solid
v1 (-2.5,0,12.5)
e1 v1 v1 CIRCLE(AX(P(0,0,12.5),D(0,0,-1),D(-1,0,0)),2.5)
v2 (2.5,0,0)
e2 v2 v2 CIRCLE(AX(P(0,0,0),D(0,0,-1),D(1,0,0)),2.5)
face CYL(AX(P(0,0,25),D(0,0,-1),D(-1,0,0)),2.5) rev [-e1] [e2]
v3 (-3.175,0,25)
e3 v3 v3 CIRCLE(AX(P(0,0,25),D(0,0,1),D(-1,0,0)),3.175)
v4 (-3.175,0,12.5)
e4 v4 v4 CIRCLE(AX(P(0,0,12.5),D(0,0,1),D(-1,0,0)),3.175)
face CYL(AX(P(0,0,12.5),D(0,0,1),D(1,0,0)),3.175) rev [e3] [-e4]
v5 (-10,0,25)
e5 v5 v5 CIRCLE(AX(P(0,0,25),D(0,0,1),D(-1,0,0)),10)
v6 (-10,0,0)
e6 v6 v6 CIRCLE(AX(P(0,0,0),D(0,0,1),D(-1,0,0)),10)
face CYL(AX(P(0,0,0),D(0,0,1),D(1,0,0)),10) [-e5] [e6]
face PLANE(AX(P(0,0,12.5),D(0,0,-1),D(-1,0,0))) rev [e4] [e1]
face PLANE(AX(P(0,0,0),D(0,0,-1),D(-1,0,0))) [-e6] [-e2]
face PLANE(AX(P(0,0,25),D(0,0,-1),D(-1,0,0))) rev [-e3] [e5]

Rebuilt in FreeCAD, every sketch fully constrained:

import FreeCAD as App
import Part
import Sketcher
from FreeCAD import Vector

doc = App.newDocument("Part")
params = doc.addObject("Spreadsheet::Sheet", "Params")
for row, (alias, value) in enumerate([
    ("sketch1_diameter", "20 mm"),
    ("pad1_length", "25 mm"),
    ("sketch2_diameter", "6.35 mm"),
    ("pocket1_length", "12.5 mm"),
    ("sketch3_diameter", "5 mm"),
], start=1):
    params.set(f"A{row}", alias)
    params.set(f"B{row}", "=" + value)
    params.setAlias(f"B{row}", alias)

body = doc.addObject("PartDesign::Body", "Body")

sketch1 = doc.addObject("Sketcher::SketchObject", "Sketch")
body.addObject(sketch1)
sketch1.AttachmentSupport = (doc.XY_Plane, [""])
sketch1.MapMode = "FlatFace"
sketch1.AttachmentOffset = App.Placement(Vector(0, 0, 25), App.Rotation())
sketch1.addGeometry(Part.Circle(Vector(0, 0, 0), Vector(0, 0, 1), 10), False)
sketch1.addConstraint([
    Sketcher.Constraint("Coincident", 0, 3, -1, 1),
    Sketcher.Constraint("Diameter", 0, 20.0),
])
sketch1.setExpression("Constraints[1]", "Params.sketch1_diameter")
pad1 = doc.addObject("PartDesign::Pad", "Pad")
body.addObject(pad1)
pad1.Profile = sketch1
pad1.setExpression("Length", "Params.pad1_length")
pad1.Reversed = True

sketch2 = doc.addObject("Sketcher::SketchObject", "Sketch001")
body.addObject(sketch2)
sketch2.AttachmentSupport = (doc.XY_Plane, [""])
sketch2.MapMode = "FlatFace"
sketch2.AttachmentOffset = App.Placement(Vector(0, 0, 25), App.Rotation())
sketch2.addGeometry(Part.Circle(Vector(0, 0, 0), Vector(0, 0, 1), 3.2), False)
sketch2.addConstraint([
    Sketcher.Constraint("Coincident", 0, 3, -1, 1),
    Sketcher.Constraint("Diameter", 0, 6.35),
])
sketch2.setExpression("Constraints[1]", "Params.sketch2_diameter")
pocket1 = doc.addObject("PartDesign::Pocket", "Pocket")
body.addObject(pocket1)
pocket1.Profile = sketch2
pocket1.setExpression("Length", "Params.pocket1_length")

sketch3 = doc.addObject("Sketcher::SketchObject", "Sketch002")
body.addObject(sketch3)
sketch3.AttachmentSupport = (doc.XY_Plane, [""])
sketch3.MapMode = "FlatFace"
sketch3.addGeometry(Part.Circle(Vector(0, 0, 0), Vector(0, 0, 1), 2.5), False)
sketch3.addConstraint([
    Sketcher.Constraint("Coincident", 0, 3, -1, 1),
    Sketcher.Constraint("Diameter", 0, 5.0),
])
sketch3.setExpression("Constraints[1]", "Params.sketch3_diameter")
pocket2 = doc.addObject("PartDesign::Pocket", "Pocket001")
body.addObject(pocket2)
pocket2.Profile = sketch3
pocket2.Type = "ThroughAll"
pocket2.Reversed = True

doc.recompute()
